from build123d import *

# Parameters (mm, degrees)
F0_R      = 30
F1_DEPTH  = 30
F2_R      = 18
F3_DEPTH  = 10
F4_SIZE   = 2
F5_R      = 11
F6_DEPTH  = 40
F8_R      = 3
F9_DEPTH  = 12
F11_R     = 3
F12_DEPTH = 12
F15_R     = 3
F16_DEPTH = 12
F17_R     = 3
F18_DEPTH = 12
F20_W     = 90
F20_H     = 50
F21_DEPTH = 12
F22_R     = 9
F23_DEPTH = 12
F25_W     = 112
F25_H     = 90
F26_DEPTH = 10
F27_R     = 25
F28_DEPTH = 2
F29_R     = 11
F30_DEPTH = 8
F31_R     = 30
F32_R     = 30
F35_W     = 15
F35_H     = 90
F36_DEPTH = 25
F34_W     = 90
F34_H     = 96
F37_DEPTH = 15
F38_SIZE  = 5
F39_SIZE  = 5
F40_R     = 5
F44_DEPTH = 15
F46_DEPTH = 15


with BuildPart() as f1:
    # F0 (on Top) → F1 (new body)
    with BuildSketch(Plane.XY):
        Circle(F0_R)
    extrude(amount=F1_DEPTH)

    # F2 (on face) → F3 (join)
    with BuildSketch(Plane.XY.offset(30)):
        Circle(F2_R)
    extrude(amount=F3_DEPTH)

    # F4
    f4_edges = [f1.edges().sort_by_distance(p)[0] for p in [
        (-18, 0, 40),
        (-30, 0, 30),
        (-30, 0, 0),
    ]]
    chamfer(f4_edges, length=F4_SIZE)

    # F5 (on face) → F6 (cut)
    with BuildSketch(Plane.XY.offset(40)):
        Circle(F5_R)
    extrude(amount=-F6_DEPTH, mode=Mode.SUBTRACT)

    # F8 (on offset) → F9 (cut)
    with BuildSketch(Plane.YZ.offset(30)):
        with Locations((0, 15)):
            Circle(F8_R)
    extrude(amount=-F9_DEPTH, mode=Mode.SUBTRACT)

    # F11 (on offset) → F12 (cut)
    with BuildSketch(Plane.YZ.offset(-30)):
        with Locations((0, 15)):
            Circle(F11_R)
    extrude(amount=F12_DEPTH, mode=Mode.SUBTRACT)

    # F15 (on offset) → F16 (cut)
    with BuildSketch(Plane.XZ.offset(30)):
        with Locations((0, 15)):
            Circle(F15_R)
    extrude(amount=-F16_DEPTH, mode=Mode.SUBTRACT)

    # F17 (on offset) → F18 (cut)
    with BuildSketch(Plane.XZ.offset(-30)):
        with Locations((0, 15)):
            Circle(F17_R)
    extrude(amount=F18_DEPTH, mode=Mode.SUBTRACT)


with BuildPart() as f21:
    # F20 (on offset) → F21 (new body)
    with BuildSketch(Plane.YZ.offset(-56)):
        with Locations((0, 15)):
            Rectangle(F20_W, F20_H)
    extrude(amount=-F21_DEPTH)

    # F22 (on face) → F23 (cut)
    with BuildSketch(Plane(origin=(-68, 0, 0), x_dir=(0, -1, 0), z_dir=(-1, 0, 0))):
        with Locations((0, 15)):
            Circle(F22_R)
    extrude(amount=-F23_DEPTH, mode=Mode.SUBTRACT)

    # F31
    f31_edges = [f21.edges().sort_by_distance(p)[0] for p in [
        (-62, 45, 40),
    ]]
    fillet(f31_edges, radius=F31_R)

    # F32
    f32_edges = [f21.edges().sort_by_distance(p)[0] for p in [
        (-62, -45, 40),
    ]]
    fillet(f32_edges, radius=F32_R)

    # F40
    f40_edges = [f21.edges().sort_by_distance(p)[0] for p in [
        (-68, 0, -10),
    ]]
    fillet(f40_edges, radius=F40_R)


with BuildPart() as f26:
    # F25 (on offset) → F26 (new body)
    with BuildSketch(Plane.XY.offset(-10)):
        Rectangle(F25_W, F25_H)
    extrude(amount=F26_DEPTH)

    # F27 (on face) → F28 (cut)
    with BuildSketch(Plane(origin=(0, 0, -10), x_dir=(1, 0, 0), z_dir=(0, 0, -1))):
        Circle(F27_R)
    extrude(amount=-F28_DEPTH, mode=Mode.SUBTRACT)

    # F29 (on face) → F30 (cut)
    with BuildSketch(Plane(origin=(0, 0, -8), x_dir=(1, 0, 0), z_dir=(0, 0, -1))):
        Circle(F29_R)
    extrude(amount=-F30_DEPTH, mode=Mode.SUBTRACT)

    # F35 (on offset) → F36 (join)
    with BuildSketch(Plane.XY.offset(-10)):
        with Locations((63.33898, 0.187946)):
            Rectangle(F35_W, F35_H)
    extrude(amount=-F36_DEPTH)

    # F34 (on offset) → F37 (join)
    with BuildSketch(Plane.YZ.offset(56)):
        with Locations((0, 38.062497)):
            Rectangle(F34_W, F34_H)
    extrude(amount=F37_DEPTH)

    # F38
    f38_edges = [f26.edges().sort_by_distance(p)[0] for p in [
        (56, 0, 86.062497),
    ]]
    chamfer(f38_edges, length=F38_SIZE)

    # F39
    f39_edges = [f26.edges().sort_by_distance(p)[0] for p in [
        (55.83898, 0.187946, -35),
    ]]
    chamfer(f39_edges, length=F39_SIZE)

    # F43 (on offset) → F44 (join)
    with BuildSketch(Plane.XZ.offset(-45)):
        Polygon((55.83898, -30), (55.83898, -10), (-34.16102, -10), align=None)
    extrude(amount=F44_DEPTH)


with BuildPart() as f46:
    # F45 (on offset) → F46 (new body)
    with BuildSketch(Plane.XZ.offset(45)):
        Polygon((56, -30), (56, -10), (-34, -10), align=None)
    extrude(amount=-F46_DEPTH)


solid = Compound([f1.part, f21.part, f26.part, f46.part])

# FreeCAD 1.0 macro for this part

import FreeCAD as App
import Part
import Sketcher
Q = App.Units.Quantity


def edges_at(feature, points):
    """Names of the edges that pass closest to the given points."""
    edges = feature.Shape.Edges
    near = lambda p: min(range(len(edges)), key=lambda i: edges[i].distToShape(Part.Vertex(*p))[0])
    return sorted({f"Edge{near(p) + 1}" for p in points})


def add_polygon(sketch, points):
    """Adds a closed chain of lines whose ends are joined by coincident constraints."""
    first, n = sketch.GeometryCount, len(points)
    for a, b in zip(points, points[1:] + points[:1]):
        sketch.addGeometry(Part.LineSegment(App.Vector(*a, 0), App.Vector(*b, 0)), False)
    for i in range(n):
        sketch.addConstraint(Sketcher.Constraint("Coincident", first + i, 2, first + (i + 1) % n, 1))

doc = App.newDocument("Part")
body = doc.addObject("PartDesign::Body", "Body")

# Sketch on XY plane
sketch1 = doc.addObject("Sketcher::SketchObject", "Sketch")
body.addObject(sketch1)
sketch1.AttachmentSupport = (doc.XY_Plane, [""])
sketch1.MapMode = "FlatFace"
sketch1.addGeometry(Part.Circle(App.Vector(0, 0, 0), App.Vector(0, 0, 1), 30), False)
sketch1.addConstraint(Sketcher.Constraint("Coincident", 0, 3, -1, 1))
sketch1.addConstraint(Sketcher.Constraint("Diameter", 0, Q("60 mm")))
pad1 = doc.addObject("PartDesign::Pad", "Pad")
body.addObject(pad1)
pad1.Profile = sketch1
pad1.Length = 30

# Sketch on XY plane
sketch2 = doc.addObject("Sketcher::SketchObject", "Sketch001")
body.addObject(sketch2)
sketch2.AttachmentSupport = (doc.XY_Plane, [""])
sketch2.MapMode = "FlatFace"
sketch2.AttachmentOffset = App.Placement(App.Vector(0, 0, 30), App.Rotation())
sketch2.addGeometry(Part.Circle(App.Vector(0, 0, 0), App.Vector(0, 0, 1), 18), False)
sketch2.addConstraint(Sketcher.Constraint("Coincident", 0, 3, -1, 1))
sketch2.addConstraint(Sketcher.Constraint("Diameter", 0, Q("36 mm")))
pad2 = doc.addObject("PartDesign::Pad", "Pad001")
body.addObject(pad2)
pad2.Profile = sketch2
pad2.Length = 10
doc.recompute()

chamfer = doc.addObject("PartDesign::Chamfer", "Chamfer")
body.addObject(chamfer)
chamfer.Base = (pad2, edges_at(pad2, [(-18, 0, 40), (-30, 0, 30), (-30, 0, 0)]))
chamfer.Size = 2

# Sketch on XY plane
sketch3 = doc.addObject("Sketcher::SketchObject", "Sketch002")
body.addObject(sketch3)
sketch3.AttachmentSupport = (doc.XY_Plane, [""])
sketch3.MapMode = "FlatFace"
sketch3.AttachmentOffset = App.Placement(App.Vector(0, 0, 40), App.Rotation())
sketch3.addGeometry(Part.Circle(App.Vector(0, 0, 0), App.Vector(0, 0, 1), 11), False)
sketch3.addConstraint(Sketcher.Constraint("Coincident", 0, 3, -1, 1))
sketch3.addConstraint(Sketcher.Constraint("Diameter", 0, Q("22 mm")))
pocket1 = doc.addObject("PartDesign::Pocket", "Pocket")
body.addObject(pocket1)
pocket1.Profile = sketch3
pocket1.Length = 40

# Sketch on YZ plane
sketch4 = doc.addObject("Sketcher::SketchObject", "Sketch003")
body.addObject(sketch4)
sketch4.AttachmentSupport = (doc.YZ_Plane, [""])
sketch4.MapMode = "FlatFace"
sketch4.AttachmentOffset = App.Placement(App.Vector(0, 0, 30), App.Rotation())
sketch4.addGeometry(Part.Circle(App.Vector(0, 15, 0), App.Vector(0, 0, 1), 3), False)
sketch4.addConstraint(Sketcher.Constraint("PointOnObject", 0, 3, -2))
sketch4.addConstraint(Sketcher.Constraint("Diameter", 0, Q("6 mm")))
sketch4.addConstraint(Sketcher.Constraint("DistanceY", -1, 1, 0, 3, Q("15 mm")))
pocket2 = doc.addObject("PartDesign::Pocket", "Pocket001")
body.addObject(pocket2)
pocket2.Profile = sketch4
pocket2.Length = 12

# Sketch on YZ plane
sketch5 = doc.addObject("Sketcher::SketchObject", "Sketch004")
body.addObject(sketch5)
sketch5.AttachmentSupport = (doc.YZ_Plane, [""])
sketch5.MapMode = "FlatFace"
sketch5.AttachmentOffset = App.Placement(App.Vector(0, 0, -30), App.Rotation())
sketch5.addGeometry(Part.Circle(App.Vector(0, 15, 0), App.Vector(0, 0, 1), 3), False)
sketch5.addConstraint(Sketcher.Constraint("PointOnObject", 0, 3, -2))
sketch5.addConstraint(Sketcher.Constraint("Diameter", 0, Q("6 mm")))
sketch5.addConstraint(Sketcher.Constraint("DistanceY", -1, 1, 0, 3, Q("15 mm")))
pocket3 = doc.addObject("PartDesign::Pocket", "Pocket002")
body.addObject(pocket3)
pocket3.Profile = sketch5
pocket3.Length = 12
pocket3.Reversed = True

# Sketch on XZ plane
sketch6 = doc.addObject("Sketcher::SketchObject", "Sketch005")
body.addObject(sketch6)
sketch6.AttachmentSupport = (doc.XZ_Plane, [""])
sketch6.MapMode = "FlatFace"
sketch6.AttachmentOffset = App.Placement(App.Vector(0, 0, 30), App.Rotation())
sketch6.addGeometry(Part.Circle(App.Vector(0, 15, 0), App.Vector(0, 0, 1), 3), False)
sketch6.addConstraint(Sketcher.Constraint("PointOnObject", 0, 3, -2))
sketch6.addConstraint(Sketcher.Constraint("Diameter", 0, Q("6 mm")))
sketch6.addConstraint(Sketcher.Constraint("DistanceY", -1, 1, 0, 3, Q("15 mm")))
pocket4 = doc.addObject("PartDesign::Pocket", "Pocket003")
body.addObject(pocket4)
pocket4.Profile = sketch6
pocket4.Length = 12

# Sketch on XZ plane
sketch7 = doc.addObject("Sketcher::SketchObject", "Sketch006")
body.addObject(sketch7)
sketch7.AttachmentSupport = (doc.XZ_Plane, [""])
sketch7.MapMode = "FlatFace"
sketch7.AttachmentOffset = App.Placement(App.Vector(0, 0, -30), App.Rotation())
sketch7.addGeometry(Part.Circle(App.Vector(0, 15, 0), App.Vector(0, 0, 1), 3), False)
sketch7.addConstraint(Sketcher.Constraint("PointOnObject", 0, 3, -2))
sketch7.addConstraint(Sketcher.Constraint("Diameter", 0, Q("6 mm")))
sketch7.addConstraint(Sketcher.Constraint("DistanceY", -1, 1, 0, 3, Q("15 mm")))
pocket5 = doc.addObject("PartDesign::Pocket", "Pocket004")
body.addObject(pocket5)
pocket5.Profile = sketch7
pocket5.Length = 12
pocket5.Reversed = True
body2 = doc.addObject("PartDesign::Body", "Body001")

# Sketch on YZ plane
sketch8 = doc.addObject("Sketcher::SketchObject", "Sketch007")
body2.addObject(sketch8)
sketch8.AttachmentSupport = (doc.getObject("YZ_Plane001"), [""])
sketch8.MapMode = "FlatFace"
sketch8.AttachmentOffset = App.Placement(App.Vector(0, 0, -56), App.Rotation())
add_polygon(sketch8, [(-45, 40), (-45, -10), (45, -10), (45, 40)])  # lines 0-3
sketch8.addConstraint(Sketcher.Constraint("Vertical", 0))
sketch8.addConstraint(Sketcher.Constraint("Horizontal", 1))
sketch8.addConstraint(Sketcher.Constraint("Vertical", 2))
sketch8.addConstraint(Sketcher.Constraint("Horizontal", 3))
sketch8.addConstraint(Sketcher.Constraint("DistanceX", 1, 1, 1, 2, Q("90 mm")))
sketch8.addConstraint(Sketcher.Constraint("DistanceY", 0, 2, 0, 1, Q("50 mm")))
sketch8.addConstraint(Sketcher.Constraint("DistanceX", 0, 2, -1, 1, Q("45 mm")))
sketch8.addConstraint(Sketcher.Constraint("DistanceY", 0, 2, -1, 1, Q("10 mm")))
pad3 = doc.addObject("PartDesign::Pad", "Pad002")
body2.addObject(pad3)
pad3.Profile = sketch8
pad3.Length = 12
pad3.Reversed = True

# Sketch on YZ plane
sketch9 = doc.addObject("Sketcher::SketchObject", "Sketch008")
body2.addObject(sketch9)
sketch9.AttachmentSupport = (doc.getObject("YZ_Plane001"), [""])
sketch9.MapMode = "FlatFace"
sketch9.AttachmentOffset = App.Placement(App.Vector(0, 0, -68), App.Rotation())
sketch9.addGeometry(Part.Circle(App.Vector(0, 15, 0), App.Vector(0, 0, 1), 9), False)
sketch9.addConstraint(Sketcher.Constraint("PointOnObject", 0, 3, -2))
sketch9.addConstraint(Sketcher.Constraint("Diameter", 0, Q("18 mm")))
sketch9.addConstraint(Sketcher.Constraint("DistanceY", -1, 1, 0, 3, Q("15 mm")))
pocket6 = doc.addObject("PartDesign::Pocket", "Pocket005")
body2.addObject(pocket6)
pocket6.Profile = sketch9
pocket6.Length = 12
pocket6.Reversed = True
doc.recompute()

fillet = doc.addObject("PartDesign::Fillet", "Fillet")
body2.addObject(fillet)
fillet.Base = (pocket6, edges_at(pocket6, [(-62, 45, 40)]))
fillet.Radius = 30
doc.recompute()

fillet2 = doc.addObject("PartDesign::Fillet", "Fillet001")
body2.addObject(fillet2)
fillet2.Base = (fillet, edges_at(fillet, [(-62, -45, 40)]))
fillet2.Radius = 30
doc.recompute()

fillet3 = doc.addObject("PartDesign::Fillet", "Fillet002")
body2.addObject(fillet3)
fillet3.Base = (fillet2, edges_at(fillet2, [(-68, 0, -10)]))
fillet3.Radius = 5
body3 = doc.addObject("PartDesign::Body", "Body002")

# Sketch on XY plane
sketch10 = doc.addObject("Sketcher::SketchObject", "Sketch009")
body3.addObject(sketch10)
sketch10.AttachmentSupport = (doc.getObject("XY_Plane002"), [""])
sketch10.MapMode = "FlatFace"
sketch10.AttachmentOffset = App.Placement(App.Vector(0, 0, -10), App.Rotation())
add_polygon(sketch10, [(-56, 45), (-56, -45), (56, -45), (56, 45)])  # lines 0-3
sketch10.addConstraint(Sketcher.Constraint("Vertical", 0))
sketch10.addConstraint(Sketcher.Constraint("Horizontal", 1))
sketch10.addConstraint(Sketcher.Constraint("Vertical", 2))
sketch10.addConstraint(Sketcher.Constraint("Horizontal", 3))
sketch10.addConstraint(Sketcher.Constraint("Symmetric", 0, 2, 2, 2, -1, 1))
sketch10.addConstraint(Sketcher.Constraint("DistanceX", 1, 1, 1, 2, Q("112 mm")))
sketch10.addConstraint(Sketcher.Constraint("DistanceY", 0, 2, 0, 1, Q("90 mm")))
pad4 = doc.addObject("PartDesign::Pad", "Pad003")
body3.addObject(pad4)
pad4.Profile = sketch10
pad4.Length = 10

# Sketch on XY plane
sketch11 = doc.addObject("Sketcher::SketchObject", "Sketch010")
body3.addObject(sketch11)
sketch11.AttachmentSupport = (doc.getObject("XY_Plane002"), [""])
sketch11.MapMode = "FlatFace"
sketch11.AttachmentOffset = App.Placement(App.Vector(0, 0, -10), App.Rotation())
sketch11.addGeometry(Part.Circle(App.Vector(0, 0, 0), App.Vector(0, 0, 1), 25), False)
sketch11.addConstraint(Sketcher.Constraint("Coincident", 0, 3, -1, 1))
sketch11.addConstraint(Sketcher.Constraint("Diameter", 0, Q("50 mm")))
pocket7 = doc.addObject("PartDesign::Pocket", "Pocket006")
body3.addObject(pocket7)
pocket7.Profile = sketch11
pocket7.Length = 2
pocket7.Reversed = True

# Sketch on XY plane
sketch12 = doc.addObject("Sketcher::SketchObject", "Sketch011")
body3.addObject(sketch12)
sketch12.AttachmentSupport = (doc.getObject("XY_Plane002"), [""])
sketch12.MapMode = "FlatFace"
sketch12.AttachmentOffset = App.Placement(App.Vector(0, 0, -8), App.Rotation())
sketch12.addGeometry(Part.Circle(App.Vector(0, 0, 0), App.Vector(0, 0, 1), 11), False)
sketch12.addConstraint(Sketcher.Constraint("Coincident", 0, 3, -1, 1))
sketch12.addConstraint(Sketcher.Constraint("Diameter", 0, Q("22 mm")))
pocket8 = doc.addObject("PartDesign::Pocket", "Pocket007")
body3.addObject(pocket8)
pocket8.Profile = sketch12
pocket8.Length = 8
pocket8.Reversed = True

# Sketch on XY plane
sketch13 = doc.addObject("Sketcher::SketchObject", "Sketch012")
body3.addObject(sketch13)
sketch13.AttachmentSupport = (doc.getObject("XY_Plane002"), [""])
sketch13.MapMode = "FlatFace"
sketch13.AttachmentOffset = App.Placement(App.Vector(0, 0, -10), App.Rotation())
add_polygon(sketch13, [(56, 45), (56, -45), (71, -45), (71, 45)])  # lines 0-3
sketch13.addConstraint(Sketcher.Constraint("Vertical", 0))
sketch13.addConstraint(Sketcher.Constraint("Horizontal", 1))
sketch13.addConstraint(Sketcher.Constraint("Vertical", 2))
sketch13.addConstraint(Sketcher.Constraint("Horizontal", 3))
sketch13.addConstraint(Sketcher.Constraint("DistanceX", 1, 1, 1, 2, Q("15 mm")))
sketch13.addConstraint(Sketcher.Constraint("DistanceY", 0, 2, 0, 1, Q("90 mm")))
sketch13.addConstraint(Sketcher.Constraint("DistanceX", -1, 1, 0, 2, Q("55.83898 mm")))
sketch13.addConstraint(Sketcher.Constraint("DistanceY", 0, 2, -1, 1, Q("44.812054 mm")))
pad5 = doc.addObject("PartDesign::Pad", "Pad004")
body3.addObject(pad5)
pad5.Profile = sketch13
pad5.Length = 25
pad5.Reversed = True

# Sketch on YZ plane
sketch14 = doc.addObject("Sketcher::SketchObject", "Sketch013")
body3.addObject(sketch14)
sketch14.AttachmentSupport = (doc.getObject("YZ_Plane002"), [""])
sketch14.MapMode = "FlatFace"
sketch14.AttachmentOffset = App.Placement(App.Vector(0, 0, 56), App.Rotation())
add_polygon(sketch14, [(-45, 86), (-45, -10), (45, -10), (45, 86)])  # lines 0-3
sketch14.addConstraint(Sketcher.Constraint("Vertical", 0))
sketch14.addConstraint(Sketcher.Constraint("Horizontal", 1))
sketch14.addConstraint(Sketcher.Constraint("Vertical", 2))
sketch14.addConstraint(Sketcher.Constraint("Horizontal", 3))
sketch14.addConstraint(Sketcher.Constraint("DistanceX", 1, 1, 1, 2, Q("90 mm")))
sketch14.addConstraint(Sketcher.Constraint("DistanceY", 0, 2, 0, 1, Q("96 mm")))
sketch14.addConstraint(Sketcher.Constraint("DistanceX", 0, 2, -1, 1, Q("45 mm")))
sketch14.addConstraint(Sketcher.Constraint("DistanceY", 0, 2, -1, 1, Q("9.937503 mm")))
pad6 = doc.addObject("PartDesign::Pad", "Pad005")
body3.addObject(pad6)
pad6.Profile = sketch14
pad6.Length = 15
doc.recompute()

chamfer2 = doc.addObject("PartDesign::Chamfer", "Chamfer001")
body3.addObject(chamfer2)
chamfer2.Base = (pad6, edges_at(pad6, [(56, 0, 86.062)]))
chamfer2.Size = 5
doc.recompute()

chamfer3 = doc.addObject("PartDesign::Chamfer", "Chamfer002")
body3.addObject(chamfer3)
chamfer3.Base = (chamfer2, edges_at(chamfer2, [(55.839, 0.188, -35)]))
chamfer3.Size = 5

# Sketch on XZ plane
sketch15 = doc.addObject("Sketcher::SketchObject", "Sketch014")
body3.addObject(sketch15)
sketch15.AttachmentSupport = (doc.getObject("XZ_Plane002"), [""])
sketch15.MapMode = "FlatFace"
sketch15.AttachmentOffset = App.Placement(App.Vector(0, 0, -45), App.Rotation())
add_polygon(sketch15, [(56, -30), (56, -10), (-34, -10)])  # lines 0-2
sketch15.addConstraint(Sketcher.Constraint("Vertical", 0))
sketch15.addConstraint(Sketcher.Constraint("Horizontal", 1))
sketch15.addConstraint(Sketcher.Constraint("DistanceX", 1, 2, 1, 1, Q("90 mm")))
sketch15.addConstraint(Sketcher.Constraint("DistanceY", 0, 1, 0, 2, Q("20 mm")))
sketch15.addConstraint(Sketcher.Constraint("DistanceY", 0, 2, -1, 1, Q("10 mm")))
sketch15.addConstraint(Sketcher.Constraint("DistanceX", -1, 1, 0, 2, Q("55.83898 mm")))
pad7 = doc.addObject("PartDesign::Pad", "Pad006")
body3.addObject(pad7)
pad7.Profile = sketch15
pad7.Length = 15
body4 = doc.addObject("PartDesign::Body", "Body003")

# Sketch on XZ plane
sketch16 = doc.addObject("Sketcher::SketchObject", "Sketch015")
body4.addObject(sketch16)
sketch16.AttachmentSupport = (doc.getObject("XZ_Plane003"), [""])
sketch16.MapMode = "FlatFace"
sketch16.AttachmentOffset = App.Placement(App.Vector(0, 0, 45), App.Rotation())
add_polygon(sketch16, [(56, -30), (56, -10), (-34, -10)])  # lines 0-2
sketch16.addConstraint(Sketcher.Constraint("Vertical", 0))
sketch16.addConstraint(Sketcher.Constraint("Horizontal", 1))
sketch16.addConstraint(Sketcher.Constraint("DistanceX", 1, 2, 1, 1, Q("90 mm")))
sketch16.addConstraint(Sketcher.Constraint("DistanceY", 0, 1, 0, 2, Q("20 mm")))
sketch16.addConstraint(Sketcher.Constraint("DistanceX", -1, 1, 0, 2, Q("56 mm")))
sketch16.addConstraint(Sketcher.Constraint("DistanceY", 0, 2, -1, 1, Q("10 mm")))
pad8 = doc.addObject("PartDesign::Pad", "Pad007")
body4.addObject(pad8)
pad8.Profile = sketch16
pad8.Length = 15
pad8.Reversed = True

doc.recompute()
